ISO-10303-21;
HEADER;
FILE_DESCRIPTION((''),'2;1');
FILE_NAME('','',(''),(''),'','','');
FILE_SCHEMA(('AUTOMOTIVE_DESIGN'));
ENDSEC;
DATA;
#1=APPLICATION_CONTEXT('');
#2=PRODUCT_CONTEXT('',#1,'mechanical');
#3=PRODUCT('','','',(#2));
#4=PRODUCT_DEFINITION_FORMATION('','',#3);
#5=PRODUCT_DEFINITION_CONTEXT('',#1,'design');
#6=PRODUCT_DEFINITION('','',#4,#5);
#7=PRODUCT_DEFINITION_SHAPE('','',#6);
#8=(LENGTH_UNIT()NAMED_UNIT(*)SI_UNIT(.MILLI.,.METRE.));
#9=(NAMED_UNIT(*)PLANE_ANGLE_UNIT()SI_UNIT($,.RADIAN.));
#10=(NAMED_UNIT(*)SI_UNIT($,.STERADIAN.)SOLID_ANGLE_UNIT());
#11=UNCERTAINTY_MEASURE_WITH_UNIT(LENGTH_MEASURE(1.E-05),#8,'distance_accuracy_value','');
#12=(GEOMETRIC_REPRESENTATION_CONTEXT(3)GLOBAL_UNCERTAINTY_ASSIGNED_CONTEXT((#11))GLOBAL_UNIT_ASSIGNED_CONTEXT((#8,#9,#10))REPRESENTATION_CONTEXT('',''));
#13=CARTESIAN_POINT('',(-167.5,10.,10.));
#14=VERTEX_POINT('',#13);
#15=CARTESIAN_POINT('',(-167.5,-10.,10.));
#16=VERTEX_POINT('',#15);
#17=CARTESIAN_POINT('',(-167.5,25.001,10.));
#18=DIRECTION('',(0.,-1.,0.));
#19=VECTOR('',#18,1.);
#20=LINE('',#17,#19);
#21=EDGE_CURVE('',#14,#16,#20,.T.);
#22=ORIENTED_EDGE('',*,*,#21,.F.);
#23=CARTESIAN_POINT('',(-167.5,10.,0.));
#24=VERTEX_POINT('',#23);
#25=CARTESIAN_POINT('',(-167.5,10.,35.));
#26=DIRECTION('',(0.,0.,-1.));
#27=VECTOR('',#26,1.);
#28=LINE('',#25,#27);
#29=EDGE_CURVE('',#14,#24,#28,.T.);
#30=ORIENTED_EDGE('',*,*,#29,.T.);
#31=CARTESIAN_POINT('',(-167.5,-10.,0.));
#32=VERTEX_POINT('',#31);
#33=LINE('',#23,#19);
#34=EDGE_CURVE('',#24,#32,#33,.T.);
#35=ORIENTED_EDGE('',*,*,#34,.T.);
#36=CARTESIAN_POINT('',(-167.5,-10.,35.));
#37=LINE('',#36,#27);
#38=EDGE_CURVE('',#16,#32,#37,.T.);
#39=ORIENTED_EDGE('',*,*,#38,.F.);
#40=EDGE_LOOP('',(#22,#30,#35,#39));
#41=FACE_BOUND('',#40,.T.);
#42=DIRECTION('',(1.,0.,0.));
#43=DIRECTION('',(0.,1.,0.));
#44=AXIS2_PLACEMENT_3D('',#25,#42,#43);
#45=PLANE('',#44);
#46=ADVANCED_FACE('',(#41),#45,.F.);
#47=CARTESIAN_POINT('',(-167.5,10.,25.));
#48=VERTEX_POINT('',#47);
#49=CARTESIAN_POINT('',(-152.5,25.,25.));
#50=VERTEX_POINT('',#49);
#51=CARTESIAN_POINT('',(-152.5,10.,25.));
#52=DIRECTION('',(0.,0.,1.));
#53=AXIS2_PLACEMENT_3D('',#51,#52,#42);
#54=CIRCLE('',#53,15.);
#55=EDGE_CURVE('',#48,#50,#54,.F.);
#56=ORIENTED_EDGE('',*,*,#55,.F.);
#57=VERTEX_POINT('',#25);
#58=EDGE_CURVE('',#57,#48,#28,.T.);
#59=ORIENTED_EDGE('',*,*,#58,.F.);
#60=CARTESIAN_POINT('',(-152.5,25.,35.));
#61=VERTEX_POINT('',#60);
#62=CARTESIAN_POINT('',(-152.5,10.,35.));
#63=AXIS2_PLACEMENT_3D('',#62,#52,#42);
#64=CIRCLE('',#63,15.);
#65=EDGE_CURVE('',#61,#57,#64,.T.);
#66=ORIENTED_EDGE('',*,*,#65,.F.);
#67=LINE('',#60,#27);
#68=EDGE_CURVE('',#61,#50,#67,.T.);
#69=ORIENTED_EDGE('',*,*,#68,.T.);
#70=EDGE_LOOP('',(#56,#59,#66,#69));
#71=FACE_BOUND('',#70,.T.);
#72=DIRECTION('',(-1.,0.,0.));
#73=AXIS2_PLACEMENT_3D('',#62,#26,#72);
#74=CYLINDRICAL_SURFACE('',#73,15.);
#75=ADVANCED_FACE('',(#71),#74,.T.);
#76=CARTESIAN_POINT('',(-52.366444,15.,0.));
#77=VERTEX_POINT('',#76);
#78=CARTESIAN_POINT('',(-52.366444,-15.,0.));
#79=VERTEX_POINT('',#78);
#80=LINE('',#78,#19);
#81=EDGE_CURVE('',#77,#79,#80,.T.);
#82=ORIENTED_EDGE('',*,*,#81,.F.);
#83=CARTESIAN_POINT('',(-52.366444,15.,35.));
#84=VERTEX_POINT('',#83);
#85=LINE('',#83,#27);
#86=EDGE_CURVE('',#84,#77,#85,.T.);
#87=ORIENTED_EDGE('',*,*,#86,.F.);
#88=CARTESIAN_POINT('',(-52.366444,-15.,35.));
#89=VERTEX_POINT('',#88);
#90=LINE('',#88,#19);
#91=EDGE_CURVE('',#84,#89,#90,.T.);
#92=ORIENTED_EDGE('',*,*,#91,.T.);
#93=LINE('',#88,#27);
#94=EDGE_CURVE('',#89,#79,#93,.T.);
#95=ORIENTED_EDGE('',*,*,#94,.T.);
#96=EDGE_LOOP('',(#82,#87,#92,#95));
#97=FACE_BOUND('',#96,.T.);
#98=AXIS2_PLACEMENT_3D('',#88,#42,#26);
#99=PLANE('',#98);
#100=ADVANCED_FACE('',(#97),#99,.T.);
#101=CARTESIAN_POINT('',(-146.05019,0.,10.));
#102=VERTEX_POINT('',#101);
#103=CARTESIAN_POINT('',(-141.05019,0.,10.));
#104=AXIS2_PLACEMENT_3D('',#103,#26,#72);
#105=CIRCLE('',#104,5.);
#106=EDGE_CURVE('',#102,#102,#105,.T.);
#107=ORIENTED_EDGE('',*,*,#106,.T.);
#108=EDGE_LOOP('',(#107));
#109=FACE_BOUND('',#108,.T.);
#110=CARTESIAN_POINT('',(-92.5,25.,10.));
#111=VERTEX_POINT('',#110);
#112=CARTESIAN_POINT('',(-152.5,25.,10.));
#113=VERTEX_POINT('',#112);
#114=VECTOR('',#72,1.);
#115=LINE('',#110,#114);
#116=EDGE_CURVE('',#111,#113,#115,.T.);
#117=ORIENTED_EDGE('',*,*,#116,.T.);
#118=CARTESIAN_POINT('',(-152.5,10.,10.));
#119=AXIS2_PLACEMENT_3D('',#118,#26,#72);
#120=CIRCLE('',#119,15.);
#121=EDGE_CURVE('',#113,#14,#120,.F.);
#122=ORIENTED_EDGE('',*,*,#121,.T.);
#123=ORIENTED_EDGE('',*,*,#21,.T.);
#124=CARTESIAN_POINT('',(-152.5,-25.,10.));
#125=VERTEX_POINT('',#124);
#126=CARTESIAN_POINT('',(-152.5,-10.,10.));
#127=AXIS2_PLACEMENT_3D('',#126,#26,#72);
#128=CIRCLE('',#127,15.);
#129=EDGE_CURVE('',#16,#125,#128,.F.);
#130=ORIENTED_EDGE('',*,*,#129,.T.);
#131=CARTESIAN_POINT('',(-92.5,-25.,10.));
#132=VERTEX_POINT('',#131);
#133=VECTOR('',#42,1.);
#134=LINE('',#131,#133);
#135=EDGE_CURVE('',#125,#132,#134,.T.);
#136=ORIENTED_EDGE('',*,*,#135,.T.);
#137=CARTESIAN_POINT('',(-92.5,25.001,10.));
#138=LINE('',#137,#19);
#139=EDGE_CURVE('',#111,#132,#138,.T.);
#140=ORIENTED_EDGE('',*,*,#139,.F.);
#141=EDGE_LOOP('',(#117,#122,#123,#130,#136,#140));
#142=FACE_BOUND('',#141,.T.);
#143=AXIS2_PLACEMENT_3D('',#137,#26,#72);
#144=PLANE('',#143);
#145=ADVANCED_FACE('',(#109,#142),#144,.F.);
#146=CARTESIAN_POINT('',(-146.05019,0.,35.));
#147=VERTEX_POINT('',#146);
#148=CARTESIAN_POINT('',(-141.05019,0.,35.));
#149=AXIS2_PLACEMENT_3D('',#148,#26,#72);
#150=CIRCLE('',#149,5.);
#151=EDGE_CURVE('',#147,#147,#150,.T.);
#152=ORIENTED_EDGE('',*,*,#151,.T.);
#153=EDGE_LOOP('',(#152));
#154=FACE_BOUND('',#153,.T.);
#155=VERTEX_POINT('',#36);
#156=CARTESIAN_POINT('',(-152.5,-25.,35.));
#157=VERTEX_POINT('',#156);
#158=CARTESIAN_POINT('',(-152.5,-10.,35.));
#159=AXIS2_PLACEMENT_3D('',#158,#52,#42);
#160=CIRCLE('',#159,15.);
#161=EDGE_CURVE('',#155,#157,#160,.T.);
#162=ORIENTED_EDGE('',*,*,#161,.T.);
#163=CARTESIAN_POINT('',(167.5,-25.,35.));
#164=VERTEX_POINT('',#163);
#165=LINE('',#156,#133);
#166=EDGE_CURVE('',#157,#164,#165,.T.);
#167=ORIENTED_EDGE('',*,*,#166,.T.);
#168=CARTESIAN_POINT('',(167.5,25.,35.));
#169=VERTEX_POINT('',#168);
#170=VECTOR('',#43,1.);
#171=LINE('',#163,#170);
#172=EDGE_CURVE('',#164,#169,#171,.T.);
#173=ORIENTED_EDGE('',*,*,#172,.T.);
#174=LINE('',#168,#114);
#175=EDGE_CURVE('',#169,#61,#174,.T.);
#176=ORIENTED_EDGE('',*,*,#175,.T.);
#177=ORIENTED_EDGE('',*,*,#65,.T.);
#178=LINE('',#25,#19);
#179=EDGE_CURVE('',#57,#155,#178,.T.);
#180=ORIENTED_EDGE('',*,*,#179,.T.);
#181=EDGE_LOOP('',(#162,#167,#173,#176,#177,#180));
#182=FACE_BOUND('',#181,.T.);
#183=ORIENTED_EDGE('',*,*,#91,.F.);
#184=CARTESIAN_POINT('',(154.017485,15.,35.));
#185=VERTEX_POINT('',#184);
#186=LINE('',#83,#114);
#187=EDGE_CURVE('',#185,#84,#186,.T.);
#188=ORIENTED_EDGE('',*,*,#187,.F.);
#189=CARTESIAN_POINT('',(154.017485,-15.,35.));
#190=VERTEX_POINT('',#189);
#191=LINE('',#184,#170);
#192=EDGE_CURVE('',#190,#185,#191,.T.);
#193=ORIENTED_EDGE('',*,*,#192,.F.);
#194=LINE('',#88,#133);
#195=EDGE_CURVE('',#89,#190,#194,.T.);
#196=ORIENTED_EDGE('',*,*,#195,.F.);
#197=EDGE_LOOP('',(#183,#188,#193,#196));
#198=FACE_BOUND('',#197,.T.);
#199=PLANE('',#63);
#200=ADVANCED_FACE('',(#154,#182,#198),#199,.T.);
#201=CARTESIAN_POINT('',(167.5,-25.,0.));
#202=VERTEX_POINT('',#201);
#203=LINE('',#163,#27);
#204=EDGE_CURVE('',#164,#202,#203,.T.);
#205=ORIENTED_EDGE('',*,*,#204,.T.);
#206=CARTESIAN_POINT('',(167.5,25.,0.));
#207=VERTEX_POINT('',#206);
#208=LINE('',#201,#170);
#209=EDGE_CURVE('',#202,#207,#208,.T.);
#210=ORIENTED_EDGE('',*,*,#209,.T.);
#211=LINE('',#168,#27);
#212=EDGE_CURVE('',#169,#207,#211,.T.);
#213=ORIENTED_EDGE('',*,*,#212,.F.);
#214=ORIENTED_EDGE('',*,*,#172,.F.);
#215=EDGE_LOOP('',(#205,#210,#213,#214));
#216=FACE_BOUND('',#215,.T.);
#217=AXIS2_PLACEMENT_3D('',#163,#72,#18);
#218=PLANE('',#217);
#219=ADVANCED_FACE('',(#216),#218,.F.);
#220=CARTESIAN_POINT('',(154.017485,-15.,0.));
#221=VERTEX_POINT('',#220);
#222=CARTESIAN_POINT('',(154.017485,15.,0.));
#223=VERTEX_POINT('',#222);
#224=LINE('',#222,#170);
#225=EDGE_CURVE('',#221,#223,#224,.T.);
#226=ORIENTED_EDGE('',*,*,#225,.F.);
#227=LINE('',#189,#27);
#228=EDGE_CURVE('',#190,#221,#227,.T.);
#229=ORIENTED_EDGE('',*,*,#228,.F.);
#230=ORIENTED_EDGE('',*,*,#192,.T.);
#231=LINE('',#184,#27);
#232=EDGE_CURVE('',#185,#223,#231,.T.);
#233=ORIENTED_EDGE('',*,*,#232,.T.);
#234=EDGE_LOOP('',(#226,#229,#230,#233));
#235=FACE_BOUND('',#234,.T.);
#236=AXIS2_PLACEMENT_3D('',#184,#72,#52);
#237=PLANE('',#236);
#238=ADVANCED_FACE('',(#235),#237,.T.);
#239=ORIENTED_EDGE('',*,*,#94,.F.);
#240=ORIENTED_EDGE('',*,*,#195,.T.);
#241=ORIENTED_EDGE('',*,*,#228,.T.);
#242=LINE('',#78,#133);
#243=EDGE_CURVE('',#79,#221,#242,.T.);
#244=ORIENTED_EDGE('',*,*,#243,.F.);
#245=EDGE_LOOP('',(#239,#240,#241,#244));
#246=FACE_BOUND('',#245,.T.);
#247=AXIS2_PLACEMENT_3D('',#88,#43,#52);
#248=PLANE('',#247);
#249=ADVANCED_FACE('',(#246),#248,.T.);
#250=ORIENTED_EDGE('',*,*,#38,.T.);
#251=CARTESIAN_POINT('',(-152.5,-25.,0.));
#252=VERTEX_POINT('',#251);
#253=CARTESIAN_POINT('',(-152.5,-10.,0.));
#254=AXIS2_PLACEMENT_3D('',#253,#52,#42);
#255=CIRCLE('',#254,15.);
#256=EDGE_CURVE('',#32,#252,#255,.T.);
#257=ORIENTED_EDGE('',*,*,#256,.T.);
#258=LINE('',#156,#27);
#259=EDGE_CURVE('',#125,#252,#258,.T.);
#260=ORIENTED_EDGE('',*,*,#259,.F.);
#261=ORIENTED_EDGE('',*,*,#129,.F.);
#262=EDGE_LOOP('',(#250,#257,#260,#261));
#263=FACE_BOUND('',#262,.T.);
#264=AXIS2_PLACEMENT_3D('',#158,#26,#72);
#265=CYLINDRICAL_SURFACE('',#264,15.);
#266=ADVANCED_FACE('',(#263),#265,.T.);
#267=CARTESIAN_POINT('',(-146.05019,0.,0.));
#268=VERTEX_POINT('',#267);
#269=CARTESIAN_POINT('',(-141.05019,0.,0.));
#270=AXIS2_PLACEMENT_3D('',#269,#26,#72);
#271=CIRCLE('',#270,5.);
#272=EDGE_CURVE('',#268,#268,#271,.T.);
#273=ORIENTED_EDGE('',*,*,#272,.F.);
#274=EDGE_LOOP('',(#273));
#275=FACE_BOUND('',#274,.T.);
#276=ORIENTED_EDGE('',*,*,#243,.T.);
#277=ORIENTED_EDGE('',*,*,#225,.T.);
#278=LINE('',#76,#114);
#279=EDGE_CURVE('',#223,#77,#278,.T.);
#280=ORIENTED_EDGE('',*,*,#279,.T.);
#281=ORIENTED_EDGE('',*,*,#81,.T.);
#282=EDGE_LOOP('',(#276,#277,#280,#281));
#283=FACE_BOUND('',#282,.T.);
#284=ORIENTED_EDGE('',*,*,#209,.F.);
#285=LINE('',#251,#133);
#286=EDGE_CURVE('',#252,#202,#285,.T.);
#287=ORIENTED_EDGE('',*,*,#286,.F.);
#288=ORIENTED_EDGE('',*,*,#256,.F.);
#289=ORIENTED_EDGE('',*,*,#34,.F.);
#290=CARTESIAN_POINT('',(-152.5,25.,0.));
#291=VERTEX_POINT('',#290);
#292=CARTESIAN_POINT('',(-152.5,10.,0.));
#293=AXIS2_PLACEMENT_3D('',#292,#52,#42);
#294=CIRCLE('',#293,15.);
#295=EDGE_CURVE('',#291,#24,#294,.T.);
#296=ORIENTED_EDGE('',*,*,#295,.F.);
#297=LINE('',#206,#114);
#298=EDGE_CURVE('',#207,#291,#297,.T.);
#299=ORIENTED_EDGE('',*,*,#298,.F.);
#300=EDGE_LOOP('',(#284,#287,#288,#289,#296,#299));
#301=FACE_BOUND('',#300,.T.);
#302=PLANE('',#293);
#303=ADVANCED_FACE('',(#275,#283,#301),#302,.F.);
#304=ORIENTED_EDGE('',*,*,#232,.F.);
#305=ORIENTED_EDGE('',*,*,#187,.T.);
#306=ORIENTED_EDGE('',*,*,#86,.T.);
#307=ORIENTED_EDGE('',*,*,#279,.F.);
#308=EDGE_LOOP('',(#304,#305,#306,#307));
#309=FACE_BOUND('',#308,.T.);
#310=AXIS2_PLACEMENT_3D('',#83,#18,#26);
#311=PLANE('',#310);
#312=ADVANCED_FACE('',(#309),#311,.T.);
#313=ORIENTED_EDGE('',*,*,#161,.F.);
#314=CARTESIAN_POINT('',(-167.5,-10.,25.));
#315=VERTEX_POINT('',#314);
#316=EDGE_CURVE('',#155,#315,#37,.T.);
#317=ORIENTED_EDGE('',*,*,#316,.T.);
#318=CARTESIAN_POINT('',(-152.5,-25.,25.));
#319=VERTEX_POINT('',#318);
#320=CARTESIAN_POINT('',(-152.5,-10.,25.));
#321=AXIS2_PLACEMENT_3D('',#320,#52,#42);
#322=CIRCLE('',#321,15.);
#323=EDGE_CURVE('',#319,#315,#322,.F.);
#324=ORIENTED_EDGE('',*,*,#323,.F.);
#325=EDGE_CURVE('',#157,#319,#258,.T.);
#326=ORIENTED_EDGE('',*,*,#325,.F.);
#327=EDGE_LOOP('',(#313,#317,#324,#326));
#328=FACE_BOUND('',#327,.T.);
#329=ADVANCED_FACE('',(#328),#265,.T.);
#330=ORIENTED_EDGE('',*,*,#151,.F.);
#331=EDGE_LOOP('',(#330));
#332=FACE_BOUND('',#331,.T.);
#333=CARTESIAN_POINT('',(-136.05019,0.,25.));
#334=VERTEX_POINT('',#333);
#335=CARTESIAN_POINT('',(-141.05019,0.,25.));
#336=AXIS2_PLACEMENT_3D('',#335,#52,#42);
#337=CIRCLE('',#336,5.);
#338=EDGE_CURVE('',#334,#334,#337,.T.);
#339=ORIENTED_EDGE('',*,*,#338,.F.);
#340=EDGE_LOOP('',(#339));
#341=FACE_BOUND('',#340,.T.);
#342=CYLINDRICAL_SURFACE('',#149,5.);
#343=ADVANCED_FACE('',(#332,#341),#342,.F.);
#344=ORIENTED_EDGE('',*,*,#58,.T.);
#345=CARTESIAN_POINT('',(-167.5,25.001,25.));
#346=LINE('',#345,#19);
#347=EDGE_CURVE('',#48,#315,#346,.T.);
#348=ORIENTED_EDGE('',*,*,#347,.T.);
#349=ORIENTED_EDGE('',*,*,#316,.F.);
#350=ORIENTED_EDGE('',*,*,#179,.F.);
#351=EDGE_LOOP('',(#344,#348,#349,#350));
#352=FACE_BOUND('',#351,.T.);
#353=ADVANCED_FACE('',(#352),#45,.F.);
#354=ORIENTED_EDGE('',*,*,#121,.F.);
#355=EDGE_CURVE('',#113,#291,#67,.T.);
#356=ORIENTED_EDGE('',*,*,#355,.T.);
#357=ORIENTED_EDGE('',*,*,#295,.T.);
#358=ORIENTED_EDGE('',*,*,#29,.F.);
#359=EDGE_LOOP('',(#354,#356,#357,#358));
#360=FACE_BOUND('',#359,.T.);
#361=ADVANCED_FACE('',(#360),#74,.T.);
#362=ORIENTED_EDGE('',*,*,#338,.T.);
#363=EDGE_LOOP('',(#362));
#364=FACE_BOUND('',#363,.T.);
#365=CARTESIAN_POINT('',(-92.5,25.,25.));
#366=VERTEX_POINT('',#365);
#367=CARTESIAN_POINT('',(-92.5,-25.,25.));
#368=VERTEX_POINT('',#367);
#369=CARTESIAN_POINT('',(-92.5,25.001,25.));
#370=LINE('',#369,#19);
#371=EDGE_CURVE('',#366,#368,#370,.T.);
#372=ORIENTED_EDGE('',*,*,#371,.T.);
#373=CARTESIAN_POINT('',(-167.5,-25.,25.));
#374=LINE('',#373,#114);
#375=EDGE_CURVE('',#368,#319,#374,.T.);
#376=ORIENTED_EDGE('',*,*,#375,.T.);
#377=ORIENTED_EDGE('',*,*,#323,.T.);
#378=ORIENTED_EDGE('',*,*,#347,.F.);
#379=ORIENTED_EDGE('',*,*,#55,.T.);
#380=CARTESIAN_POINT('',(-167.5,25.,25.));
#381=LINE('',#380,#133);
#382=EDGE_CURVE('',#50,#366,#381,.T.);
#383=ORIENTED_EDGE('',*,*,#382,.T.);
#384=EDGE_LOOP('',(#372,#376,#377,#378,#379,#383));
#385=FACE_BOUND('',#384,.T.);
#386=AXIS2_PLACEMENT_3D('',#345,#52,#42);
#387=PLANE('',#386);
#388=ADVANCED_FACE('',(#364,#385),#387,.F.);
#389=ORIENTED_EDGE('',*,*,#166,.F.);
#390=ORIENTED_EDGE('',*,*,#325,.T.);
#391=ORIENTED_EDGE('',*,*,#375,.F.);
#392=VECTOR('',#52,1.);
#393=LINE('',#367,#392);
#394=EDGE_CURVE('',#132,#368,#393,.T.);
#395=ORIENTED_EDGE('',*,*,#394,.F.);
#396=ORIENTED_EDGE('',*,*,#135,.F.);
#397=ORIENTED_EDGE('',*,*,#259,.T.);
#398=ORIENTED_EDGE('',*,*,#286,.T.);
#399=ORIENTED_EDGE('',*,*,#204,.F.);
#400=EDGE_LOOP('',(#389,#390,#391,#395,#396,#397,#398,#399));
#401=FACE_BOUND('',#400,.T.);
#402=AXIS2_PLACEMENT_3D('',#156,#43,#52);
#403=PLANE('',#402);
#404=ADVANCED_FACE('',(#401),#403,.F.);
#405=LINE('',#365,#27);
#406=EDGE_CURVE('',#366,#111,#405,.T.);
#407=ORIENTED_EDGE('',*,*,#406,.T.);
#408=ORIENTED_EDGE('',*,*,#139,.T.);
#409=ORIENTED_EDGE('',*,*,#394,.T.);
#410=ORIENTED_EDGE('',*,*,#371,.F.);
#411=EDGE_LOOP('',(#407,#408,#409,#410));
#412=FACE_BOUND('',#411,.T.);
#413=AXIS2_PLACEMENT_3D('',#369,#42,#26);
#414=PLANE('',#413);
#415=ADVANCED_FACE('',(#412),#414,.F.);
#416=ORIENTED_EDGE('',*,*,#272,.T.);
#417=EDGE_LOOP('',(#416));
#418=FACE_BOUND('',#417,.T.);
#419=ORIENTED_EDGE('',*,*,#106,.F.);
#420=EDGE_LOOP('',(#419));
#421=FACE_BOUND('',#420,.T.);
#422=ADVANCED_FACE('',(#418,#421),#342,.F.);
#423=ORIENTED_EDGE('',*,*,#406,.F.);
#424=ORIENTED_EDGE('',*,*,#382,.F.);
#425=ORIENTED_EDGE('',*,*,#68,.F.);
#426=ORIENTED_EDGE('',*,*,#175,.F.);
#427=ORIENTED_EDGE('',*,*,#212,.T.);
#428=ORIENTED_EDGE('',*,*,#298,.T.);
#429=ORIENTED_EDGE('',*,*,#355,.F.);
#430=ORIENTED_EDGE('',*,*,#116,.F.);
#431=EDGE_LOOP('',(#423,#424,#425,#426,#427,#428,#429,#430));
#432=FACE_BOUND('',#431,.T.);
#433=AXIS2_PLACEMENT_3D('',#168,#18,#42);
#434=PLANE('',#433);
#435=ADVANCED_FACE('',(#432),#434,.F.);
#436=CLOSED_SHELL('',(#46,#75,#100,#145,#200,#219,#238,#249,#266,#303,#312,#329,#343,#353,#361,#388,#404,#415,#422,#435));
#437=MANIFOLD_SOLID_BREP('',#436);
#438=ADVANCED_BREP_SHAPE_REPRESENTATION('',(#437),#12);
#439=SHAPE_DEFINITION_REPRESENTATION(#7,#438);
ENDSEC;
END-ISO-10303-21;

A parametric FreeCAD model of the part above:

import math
import FreeCAD as App
import Part
import Sketcher
from FreeCAD import Vector
Q = App.Units.Quantity


def add_polygon(sketch, points):
    """Adds a closed chain of lines whose ends are joined by coincident constraints."""
    first, n = sketch.GeometryCount, len(points)
    for a, b in zip(points, points[1:] + points[:1]):
        sketch.addGeometry(Part.LineSegment(App.Vector(*a, 0), App.Vector(*b, 0)), False)
    for i in range(n):
        sketch.addConstraint(Sketcher.Constraint("Coincident", first + i, 2, first + (i + 1) % n, 1))

doc = App.newDocument("Part")
body = doc.addObject("PartDesign::Body", "Body")

sketch1 = body.newObject("Sketcher::SketchObject", "Sketch")
sketch1.AttachmentSupport = (doc.getObject("XY_Plane"), [""])
sketch1.MapMode = "FlatFace"
sketch1.addGeometry(Part.LineSegment(Vector(-168, 10, 0), Vector(-168, -10, 0)), False)
sketch1.addGeometry(Part.ArcOfCircle(Part.Circle(Vector(-153, -10, 0), Vector(0, 0, 1), 15), math.radians(180), math.radians(270)), False)
sketch1.addGeometry(Part.LineSegment(Vector(-152, -25, 0), Vector(168, -25, 0)), False)
sketch1.addGeometry(Part.LineSegment(Vector(168, -25, 0), Vector(168, 25, 0)), False)
sketch1.addGeometry(Part.LineSegment(Vector(168, 25, 0), Vector(-152, 25, 0)), False)
sketch1.addGeometry(Part.ArcOfCircle(Part.Circle(Vector(-153, 10, 0), Vector(0, 0, 1), 15), math.radians(90), math.radians(180)), False)
add_polygon(sketch1, [(154, -15), (-52, -15), (-52, 15), (154, 15)])
sketch1.addConstraint([
    Sketcher.Constraint("Tangent", 0, 2, 1, 1),
    Sketcher.Constraint("Tangent", 1, 2, 2, 1),
    Sketcher.Constraint("Coincident", 2, 2, 3, 1),
    Sketcher.Constraint("Coincident", 3, 2, 4, 1),
    Sketcher.Constraint("Tangent", 4, 2, 5, 1),
    Sketcher.Constraint("Tangent", 5, 2, 0, 1),
    Sketcher.Constraint("Vertical", 0),
    Sketcher.Constraint("Horizontal", 2),
    Sketcher.Constraint("Vertical", 3),
    Sketcher.Constraint("Horizontal", 4),
    Sketcher.Constraint("Horizontal", 6),
    Sketcher.Constraint("Vertical", 7),
    Sketcher.Constraint("Horizontal", 8),
    Sketcher.Constraint("Vertical", 9),
    Sketcher.Constraint("Equal", 1, 5),
    Sketcher.Constraint("Radius", 1, Q("15 mm")),
    Sketcher.Constraint("DistanceX", 2, 1, 2, 2, Q("320 mm")),
    Sketcher.Constraint("DistanceY", 0, 2, 0, 1, Q("20 mm")),
    Sketcher.Constraint("DistanceY", 7, 1, 7, 2, Q("30 mm")),
    Sketcher.Constraint("DistanceY", 1, 3, -1, 1, Q("10 mm")),
    Sketcher.Constraint("DistanceY", 6, 2, -1, 1, Q("15 mm")),
    Sketcher.Constraint("DistanceX", 1, 3, -1, 1, Q("152.5 mm")),
    Sketcher.Constraint("DistanceX", 6, 2, 6, 1, Q("206.383929 mm")),
    Sketcher.Constraint("DistanceX", 6, 2, -1, 1, Q("52.366444 mm")),
])
pad1 = body.newObject("PartDesign::Pad", "Pad")
pad1.Profile = sketch1
pad1.Length = 35

sketch2 = body.newObject("Sketcher::SketchObject", "Sketch001")
sketch2.AttachmentSupport = (doc.getObject("XZ_Plane"), [""])
sketch2.MapMode = "FlatFace"
sketch2.AttachmentOffset = App.Placement(Vector(0, 0, 25), App.Rotation())
add_polygon(sketch2, [(-168, 25), (-168, 10), (-92, 10), (-92, 25)])
sketch2.addConstraint([
    Sketcher.Constraint("Vertical", 0),
    Sketcher.Constraint("Horizontal", 1),
    Sketcher.Constraint("Vertical", 2),
    Sketcher.Constraint("Horizontal", 3),
    Sketcher.Constraint("DistanceX", 1, 1, 1, 2, Q("75 mm")),
    Sketcher.Constraint("DistanceY", 0, 2, 0, 1, Q("15 mm")),
    Sketcher.Constraint("DistanceY", -1, 1, 0, 2, Q("10 mm")),
    Sketcher.Constraint("DistanceX", 0, 2, -1, 1, Q("167.5 mm")),
])
pocket1 = body.newObject("PartDesign::Pocket", "Pocket")
pocket1.Profile = sketch2
pocket1.Type = "UpToFirst"

sketch3 = body.newObject("Sketcher::SketchObject", "Sketch002")
sketch3.AttachmentSupport = (doc.getObject("XY_Plane"), [""])
sketch3.MapMode = "FlatFace"
sketch3.addGeometry(Part.Circle(Vector(-141, 0, 0), Vector(0, 0, 1), 5), False)
sketch3.addConstraint([
    Sketcher.Constraint("PointOnObject", 0, 3, -1),
    Sketcher.Constraint("Diameter", 0, Q("10 mm")),
    Sketcher.Constraint("DistanceX", 0, 3, -1, 1, Q("141.05019 mm")),
])
pocket2 = body.newObject("PartDesign::Pocket", "Pocket001")
pocket2.Profile = sketch3
pocket2.Type = "ThroughAll"
pocket2.Reversed = True

doc.recompute()
